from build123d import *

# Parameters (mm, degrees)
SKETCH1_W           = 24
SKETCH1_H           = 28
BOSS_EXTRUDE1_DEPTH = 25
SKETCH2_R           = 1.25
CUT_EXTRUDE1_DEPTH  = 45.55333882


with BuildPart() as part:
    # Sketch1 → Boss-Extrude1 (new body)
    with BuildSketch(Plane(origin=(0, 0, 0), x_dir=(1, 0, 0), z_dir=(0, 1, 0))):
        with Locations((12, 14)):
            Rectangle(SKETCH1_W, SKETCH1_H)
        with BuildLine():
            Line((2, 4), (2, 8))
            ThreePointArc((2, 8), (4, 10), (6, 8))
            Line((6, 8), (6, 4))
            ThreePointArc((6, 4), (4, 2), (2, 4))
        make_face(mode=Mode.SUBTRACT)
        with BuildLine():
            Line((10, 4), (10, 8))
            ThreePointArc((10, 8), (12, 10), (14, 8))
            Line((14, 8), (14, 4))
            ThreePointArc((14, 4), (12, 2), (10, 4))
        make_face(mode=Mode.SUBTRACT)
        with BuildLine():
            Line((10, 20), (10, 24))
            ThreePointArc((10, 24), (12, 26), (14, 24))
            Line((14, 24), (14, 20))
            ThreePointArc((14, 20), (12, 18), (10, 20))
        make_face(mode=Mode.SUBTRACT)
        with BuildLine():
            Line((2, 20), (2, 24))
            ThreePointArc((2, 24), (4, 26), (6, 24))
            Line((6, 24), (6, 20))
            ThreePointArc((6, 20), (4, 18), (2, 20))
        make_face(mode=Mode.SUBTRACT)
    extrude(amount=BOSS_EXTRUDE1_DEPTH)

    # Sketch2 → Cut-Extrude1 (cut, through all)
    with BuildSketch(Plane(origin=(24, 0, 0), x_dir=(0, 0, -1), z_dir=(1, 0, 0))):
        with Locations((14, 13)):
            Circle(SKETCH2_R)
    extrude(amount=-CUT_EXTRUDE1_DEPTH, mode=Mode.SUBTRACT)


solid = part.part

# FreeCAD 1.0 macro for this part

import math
import FreeCAD as App
import Part
import Sketcher
from FreeCAD import Vector
Q = App.Units.Quantity


def add_polygon(sketch, points):
    """Adds a closed chain of lines whose ends are joined by coincident constraints."""
    first, n = sketch.GeometryCount, len(points)
    for a, b in zip(points, points[1:] + points[:1]):
        sketch.addGeometry(Part.LineSegment(App.Vector(*a, 0), App.Vector(*b, 0)), False)
    for i in range(n):
        sketch.addConstraint(Sketcher.Constraint("Coincident", first + i, 2, first + (i + 1) % n, 1))

doc = App.newDocument("Part")
body = doc.addObject("PartDesign::Body", "Body")

# Sketch on XZ plane
sketch1 = doc.addObject("Sketcher::SketchObject", "Sketch")
body.addObject(sketch1)
sketch1.AttachmentSupport = (doc.XZ_Plane, [""])
sketch1.MapMode = "FlatFace"
add_polygon(sketch1, [(0, -28), (0, 0), (24, 0), (24, -28)])  # lines 0-3
sketch1.addGeometry(Part.ArcOfCircle(Part.Circle(Vector(4, -4, 0), Vector(0, 0, 1), 2), math.radians(0), math.radians(180)), False)  # 4
sketch1.addGeometry(Part.LineSegment(Vector(2, -4, 0), Vector(2, -8, 0)), False)  # 5
sketch1.addGeometry(Part.ArcOfCircle(Part.Circle(Vector(4, -8, 0), Vector(0, 0, 1), 2), math.radians(180), math.radians(360)), False)  # 6
sketch1.addGeometry(Part.LineSegment(Vector(6, -8, 0), Vector(6, -4, 0)), False)  # 7
sketch1.addGeometry(Part.ArcOfCircle(Part.Circle(Vector(12, -4, 0), Vector(0, 0, 1), 2), math.radians(0), math.radians(180)), False)  # 8
sketch1.addGeometry(Part.LineSegment(Vector(10, -4, 0), Vector(10, -8, 0)), False)  # 9
sketch1.addGeometry(Part.ArcOfCircle(Part.Circle(Vector(12, -8, 0), Vector(0, 0, 1), 2), math.radians(180), math.radians(360)), False)  # 10
sketch1.addGeometry(Part.LineSegment(Vector(14, -8, 0), Vector(14, -4, 0)), False)  # 11
sketch1.addGeometry(Part.ArcOfCircle(Part.Circle(Vector(4, -20, 0), Vector(0, 0, 1), 2), math.radians(0), math.radians(180)), False)  # 12
sketch1.addGeometry(Part.LineSegment(Vector(2, -20, 0), Vector(2, -24, 0)), False)  # 13
sketch1.addGeometry(Part.ArcOfCircle(Part.Circle(Vector(4, -24, 0), Vector(0, 0, 1), 2), math.radians(180), math.radians(360)), False)  # 14
sketch1.addGeometry(Part.LineSegment(Vector(6, -24, 0), Vector(6, -20, 0)), False)  # 15
sketch1.addGeometry(Part.ArcOfCircle(Part.Circle(Vector(12, -20, 0), Vector(0, 0, 1), 2), math.radians(0), math.radians(180)), False)  # 16
sketch1.addGeometry(Part.LineSegment(Vector(10, -20, 0), Vector(10, -24, 0)), False)  # 17
sketch1.addGeometry(Part.ArcOfCircle(Part.Circle(Vector(12, -24, 0), Vector(0, 0, 1), 2), math.radians(180), math.radians(360)), False)  # 18
sketch1.addGeometry(Part.LineSegment(Vector(14, -24, 0), Vector(14, -20, 0)), False)  # 19
sketch1.addConstraint([
    Sketcher.Constraint("Tangent", 4, 2, 5, 1),
    Sketcher.Constraint("Tangent", 5, 2, 6, 1),
    Sketcher.Constraint("Tangent", 6, 2, 7, 1),
    Sketcher.Constraint("Tangent", 7, 2, 4, 1),
    Sketcher.Constraint("Tangent", 8, 2, 9, 1),
    Sketcher.Constraint("Tangent", 9, 2, 10, 1),
    Sketcher.Constraint("Tangent", 10, 2, 11, 1),
    Sketcher.Constraint("Tangent", 11, 2, 8, 1),
    Sketcher.Constraint("Tangent", 12, 2, 13, 1),
    Sketcher.Constraint("Tangent", 13, 2, 14, 1),
    Sketcher.Constraint("Tangent", 14, 2, 15, 1),
    Sketcher.Constraint("Tangent", 15, 2, 12, 1),
    Sketcher.Constraint("Tangent", 16, 2, 17, 1),
    Sketcher.Constraint("Tangent", 17, 2, 18, 1),
    Sketcher.Constraint("Tangent", 18, 2, 19, 1),
    Sketcher.Constraint("Tangent", 19, 2, 16, 1),
    Sketcher.Constraint("Vertical", 0),
    Sketcher.Constraint("Horizontal", 1),
    Sketcher.Constraint("Vertical", 2),
    Sketcher.Constraint("Horizontal", 3),
    Sketcher.Constraint("Vertical", 5),
    Sketcher.Constraint("Vertical", 7),
    Sketcher.Constraint("Vertical", 9),
    Sketcher.Constraint("Vertical", 11),
    Sketcher.Constraint("Vertical", 13),
    Sketcher.Constraint("Vertical", 15),
    Sketcher.Constraint("Vertical", 17),
    Sketcher.Constraint("Vertical", 19),
    Sketcher.Constraint("Coincident", 0, 2, -1, 1),
    Sketcher.Constraint("Equal", 6, 8),
    Sketcher.Constraint("Equal", 10, 12),
    Sketcher.Constraint("Equal", 14, 16),
    Sketcher.Constraint("Horizontal", 4, 3, 8, 3),
    Sketcher.Constraint("Horizontal", 6, 3, 10, 3),
    Sketcher.Constraint("Horizontal", 12, 3, 16, 3),
    Sketcher.Constraint("Horizontal", 14, 3, 18, 3),
    Sketcher.Constraint("Vertical", 6, 3, 12, 3),
    Sketcher.Constraint("Vertical", 10, 3, 16, 3),
    Sketcher.Constraint("Equal", 11, 13),
    Sketcher.Constraint("Radius", 4, Q("2 mm")),
    Sketcher.Constraint("DistanceX", 1, 1, 1, 2, Q("24 mm")),
    Sketcher.Constraint("DistanceY", 0, 1, 0, 2, Q("28 mm")),
    Sketcher.Constraint("DistanceY", 5, 2, 5, 1, Q("4 mm")),
    Sketcher.Constraint("DistanceX", -1, 1, 4, 3, Q("4 mm")),
    Sketcher.Constraint("DistanceY", 4, 3, -1, 1, Q("4 mm")),
    Sketcher.Constraint("DistanceX", -1, 1, 8, 3, Q("12 mm")),
    Sketcher.Constraint("DistanceY", 12, 3, -1, 1, Q("20 mm")),
])
pad1 = doc.addObject("PartDesign::Pad", "Pad")
body.addObject(pad1)
pad1.Profile = sketch1
pad1.Length = 25
pad1.Reversed = True

# Sketch on YZ plane
sketch2 = doc.addObject("Sketcher::SketchObject", "Sketch001")
body.addObject(sketch2)
sketch2.AttachmentSupport = (doc.YZ_Plane, [""])
sketch2.MapMode = "FlatFace"
sketch2.AttachmentOffset = App.Placement(Vector(0, 0, 24), App.Rotation())
sketch2.addGeometry(Part.Circle(Vector(13, -14, 0), Vector(0, 0, 1), 1.2), False)
sketch2.addConstraint([
    Sketcher.Constraint("Diameter", 0, Q("2.5 mm")),
    Sketcher.Constraint("DistanceX", -1, 1, 0, 3, Q("13 mm")),
    Sketcher.Constraint("DistanceY", 0, 3, -1, 1, Q("14 mm")),
])
pocket1 = doc.addObject("PartDesign::Pocket", "Pocket")
body.addObject(pocket1)
pocket1.Profile = sketch2
pocket1.Type = "ThroughAll"

doc.recompute()
